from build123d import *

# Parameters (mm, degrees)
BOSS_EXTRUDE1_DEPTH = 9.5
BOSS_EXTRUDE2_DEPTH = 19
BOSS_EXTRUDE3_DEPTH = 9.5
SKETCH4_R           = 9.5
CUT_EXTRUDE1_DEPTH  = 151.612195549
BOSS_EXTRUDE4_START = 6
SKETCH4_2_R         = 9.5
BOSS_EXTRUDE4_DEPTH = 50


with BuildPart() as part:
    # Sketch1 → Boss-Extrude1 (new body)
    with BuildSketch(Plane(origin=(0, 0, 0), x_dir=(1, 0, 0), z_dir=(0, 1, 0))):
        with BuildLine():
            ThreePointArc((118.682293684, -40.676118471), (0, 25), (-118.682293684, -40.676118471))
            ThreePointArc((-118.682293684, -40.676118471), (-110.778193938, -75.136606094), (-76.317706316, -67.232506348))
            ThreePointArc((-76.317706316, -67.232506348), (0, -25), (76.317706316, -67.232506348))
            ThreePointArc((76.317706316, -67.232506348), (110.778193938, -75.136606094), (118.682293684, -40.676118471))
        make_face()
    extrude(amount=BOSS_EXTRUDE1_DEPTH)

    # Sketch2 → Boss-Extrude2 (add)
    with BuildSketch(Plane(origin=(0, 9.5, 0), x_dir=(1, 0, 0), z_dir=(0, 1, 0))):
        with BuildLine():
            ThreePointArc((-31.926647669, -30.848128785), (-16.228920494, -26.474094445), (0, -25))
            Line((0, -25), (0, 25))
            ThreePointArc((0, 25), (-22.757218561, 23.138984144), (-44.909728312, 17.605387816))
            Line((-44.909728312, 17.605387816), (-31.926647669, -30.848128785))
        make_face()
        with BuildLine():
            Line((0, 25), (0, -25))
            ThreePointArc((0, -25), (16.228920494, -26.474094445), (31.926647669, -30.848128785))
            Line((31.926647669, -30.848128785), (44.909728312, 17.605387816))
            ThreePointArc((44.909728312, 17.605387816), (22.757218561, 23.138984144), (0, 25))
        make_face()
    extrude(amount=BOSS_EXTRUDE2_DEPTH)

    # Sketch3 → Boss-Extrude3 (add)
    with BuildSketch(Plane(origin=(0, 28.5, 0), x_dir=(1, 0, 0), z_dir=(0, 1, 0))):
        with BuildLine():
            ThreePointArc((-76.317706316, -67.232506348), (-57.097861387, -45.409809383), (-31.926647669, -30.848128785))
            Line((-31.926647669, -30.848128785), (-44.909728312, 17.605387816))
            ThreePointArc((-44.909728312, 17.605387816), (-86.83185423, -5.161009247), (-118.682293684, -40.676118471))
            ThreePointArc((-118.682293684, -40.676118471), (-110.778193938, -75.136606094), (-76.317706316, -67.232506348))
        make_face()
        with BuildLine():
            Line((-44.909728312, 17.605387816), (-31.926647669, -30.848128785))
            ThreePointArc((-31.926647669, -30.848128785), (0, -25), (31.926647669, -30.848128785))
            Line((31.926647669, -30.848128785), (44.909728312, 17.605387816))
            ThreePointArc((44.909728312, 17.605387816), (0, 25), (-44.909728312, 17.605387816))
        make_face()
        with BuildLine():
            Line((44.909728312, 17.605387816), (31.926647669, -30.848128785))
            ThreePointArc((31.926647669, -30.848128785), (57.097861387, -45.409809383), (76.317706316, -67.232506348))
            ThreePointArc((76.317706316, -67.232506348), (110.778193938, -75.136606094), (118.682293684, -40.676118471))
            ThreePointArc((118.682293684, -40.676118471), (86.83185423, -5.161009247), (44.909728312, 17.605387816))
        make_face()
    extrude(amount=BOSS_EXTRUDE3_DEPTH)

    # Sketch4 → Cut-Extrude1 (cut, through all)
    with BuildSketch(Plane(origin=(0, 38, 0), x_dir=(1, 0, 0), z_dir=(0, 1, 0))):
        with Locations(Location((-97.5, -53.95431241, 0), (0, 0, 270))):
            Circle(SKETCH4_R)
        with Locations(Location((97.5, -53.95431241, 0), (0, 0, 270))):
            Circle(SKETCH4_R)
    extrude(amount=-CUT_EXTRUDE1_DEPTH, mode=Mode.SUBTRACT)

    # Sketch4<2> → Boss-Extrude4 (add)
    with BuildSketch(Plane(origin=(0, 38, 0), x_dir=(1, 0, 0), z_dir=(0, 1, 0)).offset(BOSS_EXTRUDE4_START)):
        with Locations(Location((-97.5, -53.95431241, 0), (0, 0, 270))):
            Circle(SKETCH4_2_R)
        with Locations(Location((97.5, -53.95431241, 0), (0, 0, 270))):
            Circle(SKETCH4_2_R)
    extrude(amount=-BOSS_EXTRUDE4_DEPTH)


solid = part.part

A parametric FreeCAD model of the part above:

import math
import FreeCAD as App
import Part
import Sketcher
from FreeCAD import Vector
Q = App.Units.Quantity

doc = App.newDocument("Part")
body = doc.addObject("PartDesign::Body", "Body")

# Sketch on XZ plane
sketch1 = doc.addObject("Sketcher::SketchObject", "Sketch")
body.addObject(sketch1)
sketch1.AttachmentSupport = (doc.XZ_Plane, [""])
sketch1.MapMode = "FlatFace"
sketch1.addGeometry([
    Part.ArcOfCircle(Part.Circle(Vector(0, 115, 0), Vector(0, 0, 1), 140), math.radians(-148), math.radians(-32)),
    Part.ArcOfCircle(Part.Circle(Vector(-98, 54, 0), Vector(0, 0, 1), 25), math.radians(32), math.radians(212)),
    Part.ArcOfCircle(Part.Circle(Vector(0, 115, 0), Vector(0, 0, 1), 90), math.radians(-148), math.radians(-32)),
    Part.ArcOfCircle(Part.Circle(Vector(98, 54, 0), Vector(0, 0, 1), 25), math.radians(-32), math.radians(148)),
], False)
sketch1.addConstraint([
    Sketcher.Constraint("Tangent", 0, 1, 1, 2),
    Sketcher.Constraint("Tangent", 1, 1, 2, 1),
    Sketcher.Constraint("Tangent", 2, 2, 3, 2),
    Sketcher.Constraint("Tangent", 3, 1, 0, 2),
    Sketcher.Constraint("Coincident", 2, 3, 0, 3),
    Sketcher.Constraint("Symmetric", 1, 3, 3, 3, -2),
    Sketcher.Constraint("Radius", 1, Q("25 mm")),
    Sketcher.Constraint("DistanceX", 1, 3, 3, 3, Q("195 mm")),
    Sketcher.Constraint("Radius", 0, Q("140.072524 mm")),
    Sketcher.Constraint("DistanceY", -1, 1, 0, 1, Q("40.676118 mm")),
])
pad1 = doc.addObject("PartDesign::Pad", "Pad")
body.addObject(pad1)
pad1.Profile = sketch1
pad1.Length = 9.5
pad1.Reversed = True

# Sketch on XZ plane
sketch2 = doc.addObject("Sketcher::SketchObject", "Sketch001")
body.addObject(sketch2)
sketch2.AttachmentSupport = (doc.XZ_Plane, [""])
sketch2.MapMode = "FlatFace"
sketch2.AttachmentOffset = App.Placement(Vector(0, 0, -9.5), App.Rotation())
sketch2.addGeometry([
    Part.ArcOfCircle(Part.Circle(Vector(0, 115, 0), Vector(0, 0, 1), 90), math.radians(-111), math.radians(-90)),  # 0
    Part.ArcOfCircle(Part.Circle(Vector(0, 115, 0), Vector(0, 0, 1), 90), math.radians(-90), math.radians(-69)),  # 1
    Part.LineSegment(Vector(32, 31, 0), Vector(45, -18, 0)),  # 2
    Part.ArcOfCircle(Part.Circle(Vector(0, 115, 0), Vector(0, 0, 1), 140), math.radians(-90), math.radians(-71.3)),  # 3
    Part.ArcOfCircle(Part.Circle(Vector(0, 115, 0), Vector(0, 0, 1), 140), math.radians(-108.7), math.radians(-90)),  # 4
    Part.LineSegment(Vector(-45, -18, 0), Vector(-32, 31, 0)),  # 5
], False)
sketch2.addConstraint([
    Sketcher.Constraint("Tangent", 0, 2, 1, 1),
    Sketcher.Constraint("Coincident", 1, 2, 2, 1),
    Sketcher.Constraint("Coincident", 2, 2, 3, 2),
    Sketcher.Constraint("Tangent", 3, 1, 4, 2),
    Sketcher.Constraint("Coincident", 4, 1, 5, 1),
    Sketcher.Constraint("Coincident", 5, 2, 0, 1),
    Sketcher.Constraint("Coincident", 3, 3, 0, 3),
    Sketcher.Constraint("Equal", 0, 1),
    Sketcher.Constraint("Equal", 3, 4),
    Sketcher.Constraint("Symmetric", 0, 2, 3, 1, -1, 1),
    Sketcher.Constraint("Symmetric", 2, 2, 4, 1, -2),
    Sketcher.Constraint("PointOnObject", 0, 2, -2),
    Sketcher.Constraint("Horizontal", 1, 2, 5, 2),
    Sketcher.Constraint("Angle", 2, Q("-75 deg")),
    Sketcher.Constraint("DistanceY", -1, 1, 0, 2, Q("25 mm")),
    Sketcher.Constraint("Radius", 0, Q("90.072524 mm")),
    Sketcher.Constraint("Distance", 2, Q("50.162772 mm")),
])
pad2 = doc.addObject("PartDesign::Pad", "Pad001")
body.addObject(pad2)
pad2.Profile = sketch2
pad2.Length = 19
pad2.Reversed = True

# Sketch on XZ plane
sketch3 = doc.addObject("Sketcher::SketchObject", "Sketch002")
body.addObject(sketch3)
sketch3.AttachmentSupport = (doc.XZ_Plane, [""])
sketch3.MapMode = "FlatFace"
sketch3.AttachmentOffset = App.Placement(Vector(0, 0, -28.5), App.Rotation())
sketch3.addGeometry([
    Part.ArcOfCircle(Part.Circle(Vector(0, 115, 0), Vector(0, 0, 1), 90), math.radians(-148), math.radians(-111)),  # 0
    Part.ArcOfCircle(Part.Circle(Vector(0, 115, 0), Vector(0, 0, 1), 90), math.radians(-111), math.radians(-69)),  # 1
    Part.ArcOfCircle(Part.Circle(Vector(0, 115, 0), Vector(0, 0, 1), 90), math.radians(-69), math.radians(-32)),  # 2
    Part.ArcOfCircle(Part.Circle(Vector(98, 54, 0), Vector(0, 0, 1), 25), math.radians(-32), math.radians(148)),  # 3
    Part.ArcOfCircle(Part.Circle(Vector(0, 115, 0), Vector(0, 0, 1), 140), math.radians(-71), math.radians(-32)),  # 4
    Part.ArcOfCircle(Part.Circle(Vector(0, 115, 0), Vector(0, 0, 1), 140), math.radians(-109), math.radians(-71)),  # 5
    Part.ArcOfCircle(Part.Circle(Vector(0, 115, 0), Vector(0, 0, 1), 140), math.radians(-148), math.radians(-109)),  # 6
    Part.ArcOfCircle(Part.Circle(Vector(-98, 54, 0), Vector(0, 0, 1), 25), math.radians(32), math.radians(212)),  # 7
], False)
sketch3.addConstraint([
    Sketcher.Constraint("Tangent", 0, 2, 1, 1),
    Sketcher.Constraint("Tangent", 1, 2, 2, 1),
    Sketcher.Constraint("Tangent", 2, 2, 3, 2),
    Sketcher.Constraint("Tangent", 3, 1, 4, 2),
    Sketcher.Constraint("Tangent", 4, 1, 5, 2),
    Sketcher.Constraint("Tangent", 5, 1, 6, 2),
    Sketcher.Constraint("Tangent", 6, 1, 7, 2),
    Sketcher.Constraint("Tangent", 7, 1, 0, 1),
    Sketcher.Constraint("Coincident", 2, 3, 0, 3),
    Sketcher.Constraint("Coincident", 4, 3, 0, 3),
    Sketcher.Constraint("Coincident", 6, 3, 0, 3),
    Sketcher.Constraint("Symmetric", 3, 3, 7, 3, -2),
    Sketcher.Constraint("Horizontal", 0, 2, 1, 2),
    Sketcher.Constraint("Horizontal", 4, 1, 5, 1),
    Sketcher.Constraint("Radius", 3, Q("25 mm")),
    Sketcher.Constraint("DistanceX", -1, 1, 3, 3, Q("97.5 mm")),
    Sketcher.Constraint("Radius", 0, Q("90.072524 mm")),
    Sketcher.Constraint("DistanceY", 4, 1, 3, 3, Q("71.5597 mm")),
    Sketcher.Constraint("DistanceY", -1, 1, 0, 2, Q("30.848129 mm")),
    Sketcher.Constraint("DistanceY", -1, 1, 3, 1, Q("40.676118 mm")),
])
pad3 = doc.addObject("PartDesign::Pad", "Pad002")
body.addObject(pad3)
pad3.Profile = sketch3
pad3.Length = 9.5
pad3.Reversed = True

# Sketch on XZ plane
sketch4 = doc.addObject("Sketcher::SketchObject", "Sketch003")
body.addObject(sketch4)
sketch4.AttachmentSupport = (doc.XZ_Plane, [""])
sketch4.MapMode = "FlatFace"
sketch4.AttachmentOffset = App.Placement(Vector(0, 0, -38), App.Rotation())
sketch4.addGeometry([
    Part.Circle(Vector(-98, 54, 0), Vector(0, 0, 1), 10),
    Part.Circle(Vector(98, 54, 0), Vector(0, 0, 1), 10),
], False)
sketch4.addConstraint([
    Sketcher.Constraint("Equal", 0, 1),
    Sketcher.Constraint("Symmetric", 0, 3, 1, 3, -2),
    Sketcher.Constraint("Diameter", 0, Q("19 mm")),
    Sketcher.Constraint("DistanceX", 0, 3, 1, 3, Q("195 mm")),
    Sketcher.Constraint("DistanceY", -1, 1, 0, 3, Q("53.954312 mm")),
])
pocket1 = doc.addObject("PartDesign::Pocket", "Pocket")
body.addObject(pocket1)
pocket1.Profile = sketch4
pocket1.Type = "ThroughAll"
pocket1.Reversed = True

# Sketch on XZ plane
sketch5 = doc.addObject("Sketcher::SketchObject", "Sketch004")
body.addObject(sketch5)
sketch5.AttachmentSupport = (doc.XZ_Plane, [""])
sketch5.MapMode = "FlatFace"
sketch5.AttachmentOffset = App.Placement(Vector(0, 0, -44), App.Rotation())
sketch5.addGeometry([
    Part.Circle(Vector(-98, 54, 0), Vector(0, 0, 1), 10),
    Part.Circle(Vector(98, 54, 0), Vector(0, 0, 1), 10),
], False)
sketch5.addConstraint([
    Sketcher.Constraint("Equal", 0, 1),
    Sketcher.Constraint("Symmetric", 0, 3, 1, 3, -2),
    Sketcher.Constraint("Diameter", 0, Q("19 mm")),
    Sketcher.Constraint("DistanceX", 0, 3, 1, 3, Q("195 mm")),
    Sketcher.Constraint("DistanceY", -1, 1, 0, 3, Q("53.954312 mm")),
])
pad4 = doc.addObject("PartDesign::Pad", "Pad003")
body.addObject(pad4)
pad4.Profile = sketch5
pad4.Length = 50

doc.recompute()
